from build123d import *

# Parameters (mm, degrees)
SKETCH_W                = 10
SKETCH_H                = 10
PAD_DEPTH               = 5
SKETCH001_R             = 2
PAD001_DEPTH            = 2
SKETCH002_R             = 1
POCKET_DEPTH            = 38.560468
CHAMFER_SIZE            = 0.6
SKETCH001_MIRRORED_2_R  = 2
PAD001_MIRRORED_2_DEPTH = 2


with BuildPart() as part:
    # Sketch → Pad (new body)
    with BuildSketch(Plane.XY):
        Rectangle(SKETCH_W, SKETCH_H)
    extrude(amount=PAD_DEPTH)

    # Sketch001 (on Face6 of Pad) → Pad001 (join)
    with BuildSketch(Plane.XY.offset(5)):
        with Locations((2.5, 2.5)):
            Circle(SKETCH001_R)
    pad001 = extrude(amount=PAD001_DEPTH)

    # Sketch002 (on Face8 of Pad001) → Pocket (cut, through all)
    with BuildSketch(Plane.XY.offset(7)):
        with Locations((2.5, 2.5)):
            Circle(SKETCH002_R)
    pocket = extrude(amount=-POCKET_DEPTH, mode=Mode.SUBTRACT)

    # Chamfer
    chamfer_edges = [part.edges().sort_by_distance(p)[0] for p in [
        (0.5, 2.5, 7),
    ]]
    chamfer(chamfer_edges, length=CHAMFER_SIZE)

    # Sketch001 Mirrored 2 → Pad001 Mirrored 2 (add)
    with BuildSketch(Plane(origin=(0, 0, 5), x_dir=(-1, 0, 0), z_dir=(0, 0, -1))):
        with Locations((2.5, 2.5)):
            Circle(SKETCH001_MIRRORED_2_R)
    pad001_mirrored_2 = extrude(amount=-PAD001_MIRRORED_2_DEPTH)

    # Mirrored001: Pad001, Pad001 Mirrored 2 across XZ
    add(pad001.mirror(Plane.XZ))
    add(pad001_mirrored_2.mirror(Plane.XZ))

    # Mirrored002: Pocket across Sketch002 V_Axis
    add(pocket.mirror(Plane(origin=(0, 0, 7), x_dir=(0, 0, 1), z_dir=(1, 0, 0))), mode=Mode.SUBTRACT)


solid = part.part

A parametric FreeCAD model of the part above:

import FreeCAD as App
import Part
import Sketcher
Q = App.Units.Quantity


def edges_at(feature, points):
    """Names of the edges that pass closest to the given points."""
    edges = feature.Shape.Edges
    near = lambda p: min(range(len(edges)), key=lambda i: edges[i].distToShape(Part.Vertex(*p))[0])
    return sorted({f"Edge{near(p) + 1}" for p in points})


def add_polygon(sketch, points):
    """Adds a closed chain of lines whose ends are joined by coincident constraints."""
    first, n = sketch.GeometryCount, len(points)
    for a, b in zip(points, points[1:] + points[:1]):
        sketch.addGeometry(Part.LineSegment(App.Vector(*a, 0), App.Vector(*b, 0)), False)
    for i in range(n):
        sketch.addConstraint(Sketcher.Constraint("Coincident", first + i, 2, first + (i + 1) % n, 1))

doc = App.newDocument("Part")
body = doc.addObject("PartDesign::Body", "Body")

# Sketch on XY plane
sketch1 = doc.addObject("Sketcher::SketchObject", "Sketch")
body.addObject(sketch1)
sketch1.AttachmentSupport = (doc.XY_Plane, [""])
sketch1.MapMode = "FlatFace"
add_polygon(sketch1, [(-5, 5), (-5, -5), (5, -5), (5, 5)])  # lines 0-3
sketch1.addConstraint(Sketcher.Constraint("Vertical", 0))
sketch1.addConstraint(Sketcher.Constraint("Horizontal", 1))
sketch1.addConstraint(Sketcher.Constraint("Vertical", 2))
sketch1.addConstraint(Sketcher.Constraint("Horizontal", 3))
sketch1.addConstraint(Sketcher.Constraint("Symmetric", 0, 2, 2, 2, -1, 1))
sketch1.addConstraint(Sketcher.Constraint("Equal", 3, 0))
sketch1.addConstraint(Sketcher.Constraint("DistanceX", 1, 1, 1, 2, Q("10 mm")))
pad1 = doc.addObject("PartDesign::Pad", "Pad")
body.addObject(pad1)
pad1.Profile = sketch1
pad1.Length = 5

# Sketch on XY plane
sketch2 = doc.addObject("Sketcher::SketchObject", "Sketch001")
body.addObject(sketch2)
sketch2.AttachmentSupport = (doc.XY_Plane, [""])
sketch2.MapMode = "FlatFace"
sketch2.AttachmentOffset = App.Placement(App.Vector(0, 0, 5), App.Rotation())
sketch2.addGeometry(Part.Circle(App.Vector(2.5, 2.5, 0), App.Vector(0, 0, 1), 2), False)
sketch2.addConstraint(Sketcher.Constraint("Diameter", 0, Q("4 mm")))
sketch2.addConstraint(Sketcher.Constraint("DistanceX", -1, 1, 0, 3, Q("2.5 mm")))
sketch2.addConstraint(Sketcher.Constraint("DistanceY", -1, 1, 0, 3, Q("2.5 mm")))
pad2 = doc.addObject("PartDesign::Pad", "Pad001")
body.addObject(pad2)
pad2.Profile = sketch2
pad2.Length = 2

# Sketch on XY plane
sketch3 = doc.addObject("Sketcher::SketchObject", "Sketch002")
body.addObject(sketch3)
sketch3.AttachmentSupport = (doc.XY_Plane, [""])
sketch3.MapMode = "FlatFace"
sketch3.AttachmentOffset = App.Placement(App.Vector(0, 0, 7), App.Rotation())
sketch3.addGeometry(Part.Circle(App.Vector(2.5, 2.5, 0), App.Vector(0, 0, 1), 1), False)
sketch3.addConstraint(Sketcher.Constraint("Diameter", 0, Q("2 mm")))
sketch3.addConstraint(Sketcher.Constraint("DistanceX", -1, 1, 0, 3, Q("2.5 mm")))
sketch3.addConstraint(Sketcher.Constraint("DistanceY", -1, 1, 0, 3, Q("2.5 mm")))
pocket1 = doc.addObject("PartDesign::Pocket", "Pocket")
body.addObject(pocket1)
pocket1.Profile = sketch3
pocket1.Type = "ThroughAll"
doc.recompute()

chamfer = doc.addObject("PartDesign::Chamfer", "Chamfer")
body.addObject(chamfer)
chamfer.Base = (pocket1, edges_at(pocket1, [(0.5, 2.5, 7)]))
chamfer.Size = 0.6

# Sketch on XY plane
sketch4 = doc.addObject("Sketcher::SketchObject", "Sketch003")
body.addObject(sketch4)
sketch4.AttachmentSupport = (doc.XY_Plane, [""])
sketch4.MapMode = "FlatFace"
sketch4.AttachmentOffset = App.Placement(App.Vector(0, 0, 5), App.Rotation())
sketch4.addGeometry(Part.Circle(App.Vector(-2.5, 2.5, 0), App.Vector(0, 0, 1), 2), False)
sketch4.addConstraint(Sketcher.Constraint("Diameter", 0, Q("4 mm")))
sketch4.addConstraint(Sketcher.Constraint("DistanceX", 0, 3, -1, 1, Q("2.5 mm")))
sketch4.addConstraint(Sketcher.Constraint("DistanceY", -1, 1, 0, 3, Q("2.5 mm")))
pad3 = doc.addObject("PartDesign::Pad", "Pad002")
body.addObject(pad3)
pad3.Profile = sketch4
pad3.Length = 2
doc.recompute()

mirrored = doc.addObject("PartDesign::Mirrored", "Mirrored")
body.addObject(mirrored)
mirrored.Originals = [pad2, pad3]
mirrored.MirrorPlane = (doc.XZ_Plane, [""])
body.Tip = mirrored
doc.recompute()

mirrored2 = doc.addObject("PartDesign::Mirrored", "Mirrored001")
body.addObject(mirrored2)
mirrored2.Originals = [pocket1]
mirrored2.MirrorPlane = (doc.YZ_Plane, [""])
body.Tip = mirrored2

doc.recompute()
